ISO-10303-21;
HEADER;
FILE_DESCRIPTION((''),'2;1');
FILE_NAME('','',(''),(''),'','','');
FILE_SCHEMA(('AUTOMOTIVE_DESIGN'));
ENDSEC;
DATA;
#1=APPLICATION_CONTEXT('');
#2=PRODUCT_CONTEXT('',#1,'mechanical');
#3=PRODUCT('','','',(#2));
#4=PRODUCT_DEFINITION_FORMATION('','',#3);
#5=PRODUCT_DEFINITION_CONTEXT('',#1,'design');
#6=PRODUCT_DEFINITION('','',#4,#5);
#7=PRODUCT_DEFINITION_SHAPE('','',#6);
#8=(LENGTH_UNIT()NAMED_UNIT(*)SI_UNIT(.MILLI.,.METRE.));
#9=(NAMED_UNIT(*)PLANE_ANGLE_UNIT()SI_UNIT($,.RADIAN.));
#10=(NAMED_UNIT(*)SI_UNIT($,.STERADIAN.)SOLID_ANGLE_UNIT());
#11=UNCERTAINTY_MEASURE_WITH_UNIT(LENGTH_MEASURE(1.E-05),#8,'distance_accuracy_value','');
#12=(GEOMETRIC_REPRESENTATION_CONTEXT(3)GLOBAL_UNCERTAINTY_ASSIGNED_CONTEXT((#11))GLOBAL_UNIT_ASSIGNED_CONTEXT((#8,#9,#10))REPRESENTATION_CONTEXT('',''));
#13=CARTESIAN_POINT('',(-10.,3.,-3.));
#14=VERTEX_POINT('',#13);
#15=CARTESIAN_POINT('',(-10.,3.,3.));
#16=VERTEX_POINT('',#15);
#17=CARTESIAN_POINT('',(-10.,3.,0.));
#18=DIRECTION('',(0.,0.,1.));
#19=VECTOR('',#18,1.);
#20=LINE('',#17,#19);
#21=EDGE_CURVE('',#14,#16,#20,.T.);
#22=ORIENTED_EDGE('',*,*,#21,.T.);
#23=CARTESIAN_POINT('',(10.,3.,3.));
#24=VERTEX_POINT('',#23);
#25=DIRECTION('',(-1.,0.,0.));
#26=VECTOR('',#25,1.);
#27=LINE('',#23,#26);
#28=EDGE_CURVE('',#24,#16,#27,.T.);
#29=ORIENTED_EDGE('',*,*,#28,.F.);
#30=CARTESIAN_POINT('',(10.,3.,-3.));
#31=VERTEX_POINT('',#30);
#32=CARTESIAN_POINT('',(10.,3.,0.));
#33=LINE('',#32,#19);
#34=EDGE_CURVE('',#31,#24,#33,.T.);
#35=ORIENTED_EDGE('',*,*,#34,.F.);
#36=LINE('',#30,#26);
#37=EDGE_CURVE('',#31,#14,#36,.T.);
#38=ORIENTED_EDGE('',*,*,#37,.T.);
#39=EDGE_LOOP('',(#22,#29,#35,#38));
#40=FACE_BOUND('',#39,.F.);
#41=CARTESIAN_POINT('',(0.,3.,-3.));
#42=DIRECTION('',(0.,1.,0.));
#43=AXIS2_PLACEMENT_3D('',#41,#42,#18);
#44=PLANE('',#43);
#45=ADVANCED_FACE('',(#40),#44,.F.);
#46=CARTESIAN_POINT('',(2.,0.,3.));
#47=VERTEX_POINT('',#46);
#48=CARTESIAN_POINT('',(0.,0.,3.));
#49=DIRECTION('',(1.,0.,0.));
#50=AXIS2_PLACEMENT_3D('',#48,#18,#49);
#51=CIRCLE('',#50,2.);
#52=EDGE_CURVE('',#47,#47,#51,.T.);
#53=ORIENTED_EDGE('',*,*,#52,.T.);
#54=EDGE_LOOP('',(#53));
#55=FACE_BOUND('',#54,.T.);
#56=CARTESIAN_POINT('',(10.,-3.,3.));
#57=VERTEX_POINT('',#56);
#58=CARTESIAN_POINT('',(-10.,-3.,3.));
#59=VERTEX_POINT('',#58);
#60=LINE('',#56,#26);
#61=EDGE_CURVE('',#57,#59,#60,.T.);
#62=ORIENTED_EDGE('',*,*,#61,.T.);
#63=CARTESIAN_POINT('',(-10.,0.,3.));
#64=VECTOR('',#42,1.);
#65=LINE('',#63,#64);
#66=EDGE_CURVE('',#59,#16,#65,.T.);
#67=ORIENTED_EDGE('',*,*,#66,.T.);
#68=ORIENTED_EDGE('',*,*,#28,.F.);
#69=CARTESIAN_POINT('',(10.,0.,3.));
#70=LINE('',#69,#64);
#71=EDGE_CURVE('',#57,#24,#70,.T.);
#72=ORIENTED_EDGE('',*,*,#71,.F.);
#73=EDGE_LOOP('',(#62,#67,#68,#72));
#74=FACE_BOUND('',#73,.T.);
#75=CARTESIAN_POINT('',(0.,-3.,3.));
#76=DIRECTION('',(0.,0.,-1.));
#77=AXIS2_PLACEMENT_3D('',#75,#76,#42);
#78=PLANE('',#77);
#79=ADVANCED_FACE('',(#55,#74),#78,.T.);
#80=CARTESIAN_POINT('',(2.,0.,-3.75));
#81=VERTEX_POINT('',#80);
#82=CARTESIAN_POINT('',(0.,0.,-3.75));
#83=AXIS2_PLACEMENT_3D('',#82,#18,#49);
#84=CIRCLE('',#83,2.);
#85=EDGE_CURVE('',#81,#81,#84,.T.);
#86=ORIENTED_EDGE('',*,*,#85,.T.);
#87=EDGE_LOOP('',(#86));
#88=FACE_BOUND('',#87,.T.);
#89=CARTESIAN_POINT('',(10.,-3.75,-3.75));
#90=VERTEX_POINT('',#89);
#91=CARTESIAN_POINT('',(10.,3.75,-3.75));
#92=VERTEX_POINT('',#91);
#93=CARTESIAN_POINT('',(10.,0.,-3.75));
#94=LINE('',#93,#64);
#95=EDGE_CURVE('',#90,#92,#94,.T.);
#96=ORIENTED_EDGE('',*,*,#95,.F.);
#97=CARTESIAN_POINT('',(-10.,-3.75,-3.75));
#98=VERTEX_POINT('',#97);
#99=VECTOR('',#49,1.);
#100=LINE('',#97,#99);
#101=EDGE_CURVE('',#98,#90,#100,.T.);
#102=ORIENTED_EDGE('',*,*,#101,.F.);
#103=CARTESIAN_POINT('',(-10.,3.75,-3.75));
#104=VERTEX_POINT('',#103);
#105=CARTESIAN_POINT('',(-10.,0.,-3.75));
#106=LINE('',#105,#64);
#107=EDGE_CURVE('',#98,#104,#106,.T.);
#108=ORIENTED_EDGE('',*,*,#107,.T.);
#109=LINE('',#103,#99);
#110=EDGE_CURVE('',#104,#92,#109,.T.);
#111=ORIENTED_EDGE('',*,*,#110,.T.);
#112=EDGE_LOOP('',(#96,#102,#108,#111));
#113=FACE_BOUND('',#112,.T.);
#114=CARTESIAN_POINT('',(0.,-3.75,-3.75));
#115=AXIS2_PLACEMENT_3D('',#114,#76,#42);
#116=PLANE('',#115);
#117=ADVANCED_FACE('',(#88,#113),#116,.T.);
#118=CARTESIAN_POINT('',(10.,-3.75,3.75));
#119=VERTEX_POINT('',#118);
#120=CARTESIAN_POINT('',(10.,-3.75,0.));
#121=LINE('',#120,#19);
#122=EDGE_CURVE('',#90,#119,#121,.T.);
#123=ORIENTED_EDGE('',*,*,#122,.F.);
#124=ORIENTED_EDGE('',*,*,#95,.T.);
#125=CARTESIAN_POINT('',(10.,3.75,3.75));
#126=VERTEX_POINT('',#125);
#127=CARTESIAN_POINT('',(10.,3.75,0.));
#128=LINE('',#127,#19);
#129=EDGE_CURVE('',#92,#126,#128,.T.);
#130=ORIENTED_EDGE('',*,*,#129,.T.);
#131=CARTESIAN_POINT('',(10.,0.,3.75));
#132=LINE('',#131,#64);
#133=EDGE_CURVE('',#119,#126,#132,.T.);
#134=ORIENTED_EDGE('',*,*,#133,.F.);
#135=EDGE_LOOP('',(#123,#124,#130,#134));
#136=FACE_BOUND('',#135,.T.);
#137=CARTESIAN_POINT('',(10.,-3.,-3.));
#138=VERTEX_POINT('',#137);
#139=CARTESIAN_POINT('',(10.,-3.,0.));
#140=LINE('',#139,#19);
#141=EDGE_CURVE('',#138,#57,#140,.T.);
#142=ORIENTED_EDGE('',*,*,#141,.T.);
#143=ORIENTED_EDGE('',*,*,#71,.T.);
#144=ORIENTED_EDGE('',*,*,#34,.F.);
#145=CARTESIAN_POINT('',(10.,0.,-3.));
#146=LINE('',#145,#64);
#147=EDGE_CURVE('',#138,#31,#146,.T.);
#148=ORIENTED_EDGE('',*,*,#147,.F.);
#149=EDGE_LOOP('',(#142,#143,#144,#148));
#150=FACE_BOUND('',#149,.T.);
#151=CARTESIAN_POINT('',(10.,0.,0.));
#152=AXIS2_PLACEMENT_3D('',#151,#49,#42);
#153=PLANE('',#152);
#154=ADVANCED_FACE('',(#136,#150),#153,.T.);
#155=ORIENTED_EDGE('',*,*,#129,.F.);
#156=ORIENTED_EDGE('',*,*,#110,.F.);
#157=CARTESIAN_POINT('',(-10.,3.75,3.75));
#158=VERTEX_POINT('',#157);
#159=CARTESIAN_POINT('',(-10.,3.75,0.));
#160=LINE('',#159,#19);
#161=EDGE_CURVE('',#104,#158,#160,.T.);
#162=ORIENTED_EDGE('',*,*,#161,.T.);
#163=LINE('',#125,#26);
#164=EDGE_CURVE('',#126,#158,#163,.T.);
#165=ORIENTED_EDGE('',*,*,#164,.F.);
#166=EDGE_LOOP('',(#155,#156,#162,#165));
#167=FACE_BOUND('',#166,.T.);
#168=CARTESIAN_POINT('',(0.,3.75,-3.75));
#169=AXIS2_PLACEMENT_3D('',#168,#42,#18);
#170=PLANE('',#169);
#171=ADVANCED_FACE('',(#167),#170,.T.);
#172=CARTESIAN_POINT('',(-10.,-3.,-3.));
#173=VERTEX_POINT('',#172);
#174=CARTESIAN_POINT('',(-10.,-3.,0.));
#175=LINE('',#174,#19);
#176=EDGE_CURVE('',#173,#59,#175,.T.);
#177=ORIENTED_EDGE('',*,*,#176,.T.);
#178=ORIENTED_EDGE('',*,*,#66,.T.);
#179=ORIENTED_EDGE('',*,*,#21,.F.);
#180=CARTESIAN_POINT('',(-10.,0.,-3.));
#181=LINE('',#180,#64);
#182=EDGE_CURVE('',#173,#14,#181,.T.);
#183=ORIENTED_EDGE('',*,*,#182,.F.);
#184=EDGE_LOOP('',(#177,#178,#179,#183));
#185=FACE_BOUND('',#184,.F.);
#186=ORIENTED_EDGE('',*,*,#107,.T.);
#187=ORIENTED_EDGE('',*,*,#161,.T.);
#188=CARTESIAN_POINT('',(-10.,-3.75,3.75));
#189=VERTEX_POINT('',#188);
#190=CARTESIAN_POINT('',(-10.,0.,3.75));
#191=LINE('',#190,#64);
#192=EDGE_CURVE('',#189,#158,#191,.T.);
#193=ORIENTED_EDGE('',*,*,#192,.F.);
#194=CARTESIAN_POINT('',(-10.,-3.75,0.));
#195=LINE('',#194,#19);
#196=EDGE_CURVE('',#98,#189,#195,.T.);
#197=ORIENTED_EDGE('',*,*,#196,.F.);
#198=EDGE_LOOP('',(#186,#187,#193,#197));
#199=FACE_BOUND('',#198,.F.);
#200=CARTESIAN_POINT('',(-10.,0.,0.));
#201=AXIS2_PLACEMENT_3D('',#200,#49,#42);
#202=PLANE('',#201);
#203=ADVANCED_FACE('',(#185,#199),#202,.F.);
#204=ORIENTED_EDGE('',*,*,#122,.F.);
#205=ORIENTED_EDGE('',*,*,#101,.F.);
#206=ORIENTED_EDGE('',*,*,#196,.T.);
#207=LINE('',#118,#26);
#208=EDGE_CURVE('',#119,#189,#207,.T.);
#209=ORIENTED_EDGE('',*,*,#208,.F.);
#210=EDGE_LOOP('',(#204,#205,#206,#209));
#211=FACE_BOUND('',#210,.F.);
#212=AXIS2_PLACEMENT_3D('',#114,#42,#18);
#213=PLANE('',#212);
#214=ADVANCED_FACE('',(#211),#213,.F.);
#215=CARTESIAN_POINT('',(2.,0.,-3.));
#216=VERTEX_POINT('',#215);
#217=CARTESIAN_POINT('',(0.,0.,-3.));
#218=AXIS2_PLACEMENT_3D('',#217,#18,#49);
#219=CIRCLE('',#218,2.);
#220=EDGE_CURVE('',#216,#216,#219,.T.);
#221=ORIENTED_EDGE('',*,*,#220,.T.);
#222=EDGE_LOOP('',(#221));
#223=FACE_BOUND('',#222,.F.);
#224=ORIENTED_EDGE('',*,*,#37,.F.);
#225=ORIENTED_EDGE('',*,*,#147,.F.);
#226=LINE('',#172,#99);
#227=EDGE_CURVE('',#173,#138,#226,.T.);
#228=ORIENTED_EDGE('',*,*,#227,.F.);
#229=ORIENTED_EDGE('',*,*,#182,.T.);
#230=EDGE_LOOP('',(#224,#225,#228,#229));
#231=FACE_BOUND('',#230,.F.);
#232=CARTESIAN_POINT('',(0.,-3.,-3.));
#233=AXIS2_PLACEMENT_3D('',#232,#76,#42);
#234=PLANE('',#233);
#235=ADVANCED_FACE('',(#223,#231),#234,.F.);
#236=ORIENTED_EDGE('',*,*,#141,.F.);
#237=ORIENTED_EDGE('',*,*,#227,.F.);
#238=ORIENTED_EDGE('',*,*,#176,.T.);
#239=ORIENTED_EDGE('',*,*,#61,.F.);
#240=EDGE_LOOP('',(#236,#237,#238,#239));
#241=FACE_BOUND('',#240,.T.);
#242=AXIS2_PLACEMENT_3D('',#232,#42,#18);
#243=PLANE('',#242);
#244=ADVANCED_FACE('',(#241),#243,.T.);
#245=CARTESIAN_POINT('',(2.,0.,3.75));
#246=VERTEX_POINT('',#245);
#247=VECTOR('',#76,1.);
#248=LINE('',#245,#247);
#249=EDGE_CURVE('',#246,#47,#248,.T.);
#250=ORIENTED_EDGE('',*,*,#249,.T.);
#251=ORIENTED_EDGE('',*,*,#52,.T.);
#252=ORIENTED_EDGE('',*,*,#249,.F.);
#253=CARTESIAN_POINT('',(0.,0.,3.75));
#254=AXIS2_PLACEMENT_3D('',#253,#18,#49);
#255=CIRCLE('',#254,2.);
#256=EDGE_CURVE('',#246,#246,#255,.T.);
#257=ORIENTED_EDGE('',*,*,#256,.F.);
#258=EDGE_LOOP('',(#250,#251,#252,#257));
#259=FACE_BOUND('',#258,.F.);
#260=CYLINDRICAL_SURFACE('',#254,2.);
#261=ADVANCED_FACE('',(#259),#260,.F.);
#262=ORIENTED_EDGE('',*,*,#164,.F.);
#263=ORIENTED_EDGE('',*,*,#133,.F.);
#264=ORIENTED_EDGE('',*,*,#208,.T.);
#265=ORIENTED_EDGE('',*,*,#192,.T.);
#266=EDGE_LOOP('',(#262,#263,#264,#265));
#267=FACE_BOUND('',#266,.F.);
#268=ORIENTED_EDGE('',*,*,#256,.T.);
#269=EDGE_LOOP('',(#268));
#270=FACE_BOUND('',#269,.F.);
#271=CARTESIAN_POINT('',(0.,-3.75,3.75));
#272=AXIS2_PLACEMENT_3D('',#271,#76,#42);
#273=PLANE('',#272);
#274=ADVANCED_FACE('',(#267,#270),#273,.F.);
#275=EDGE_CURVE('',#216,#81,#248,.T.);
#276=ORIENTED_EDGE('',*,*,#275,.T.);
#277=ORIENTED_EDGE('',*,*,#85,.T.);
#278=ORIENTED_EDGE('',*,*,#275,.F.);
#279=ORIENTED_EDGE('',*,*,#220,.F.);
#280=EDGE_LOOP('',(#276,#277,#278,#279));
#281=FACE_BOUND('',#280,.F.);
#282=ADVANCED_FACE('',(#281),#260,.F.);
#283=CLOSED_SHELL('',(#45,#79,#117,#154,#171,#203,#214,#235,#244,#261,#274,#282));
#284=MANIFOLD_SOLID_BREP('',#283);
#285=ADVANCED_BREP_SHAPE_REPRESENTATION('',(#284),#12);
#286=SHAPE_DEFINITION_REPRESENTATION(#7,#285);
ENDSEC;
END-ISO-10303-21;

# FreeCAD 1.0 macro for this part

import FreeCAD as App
import Part
import Sketcher

V = App.Vector


def add_polygon(sketch, points):
    """Adds a closed chain of lines whose ends are joined by coincident constraints."""
    first, n = sketch.GeometryCount, len(points)
    for a, b in zip(points, points[1:] + points[:1]):
        sketch.addGeometry(Part.LineSegment(App.Vector(*a, 0), App.Vector(*b, 0)), False)
    for i in range(n):
        sketch.addConstraint(Sketcher.Constraint("Coincident", first + i, 2, first + (i + 1) % n, 1))

doc = App.newDocument("Part")
body = doc.addObject("PartDesign::Body", "Body")

# Sketch on YZ plane
sketch1 = body.newObject("Sketcher::SketchObject", "Sketch")
sketch1.AttachmentSupport = (doc.getObject("YZ_Plane"), [""])
sketch1.MapMode = "FlatFace"
add_polygon(sketch1, [(-4, 4), (-4, -4), (4, -4), (4, 4)])  # lines 0-3
add_polygon(sketch1, [(3, -3), (-3, -3), (-3, 3), (3, 3)])  # lines 4-7
sketch1.addConstraint([
    Sketcher.Constraint("Vertical", 0),
    Sketcher.Constraint("Horizontal", 1),
    Sketcher.Constraint("Vertical", 2),
    Sketcher.Constraint("Horizontal", 3),
    Sketcher.Constraint("Horizontal", 4),
    Sketcher.Constraint("Vertical", 5),
    Sketcher.Constraint("Horizontal", 6),
    Sketcher.Constraint("Vertical", 7),
    Sketcher.Constraint("Symmetric", 0, 2, 2, 2, -1, 1),
    Sketcher.Constraint("Symmetric", 4, 2, 6, 2, -1, 1),
    Sketcher.Constraint("Equal", 3, 0),
    Sketcher.Constraint("Equal", 6, 5),
    Sketcher.Constraint("DistanceX", 4, 2, 4, 1, 6.0),
    Sketcher.Constraint("DistanceX", 1, 1, 1, 2, 7.5),
])
pad1 = body.newObject("PartDesign::Pad", "Pad")
pad1.Profile = sketch1
pad1.Length = 20
pad1.Midplane = True

# Sketch on XY plane
sketch2 = body.newObject("Sketcher::SketchObject", "Sketch001")
sketch2.AttachmentSupport = (doc.getObject("XY_Plane"), [""])
sketch2.MapMode = "FlatFace"
sketch2.AttachmentOffset = App.Placement(V(0, 0, 3.75), App.Rotation())
sketch2.addGeometry(Part.Circle(V(0, 0, 0), V(0, 0, 1), 2), False)
sketch2.addConstraint([
    Sketcher.Constraint("Coincident", 0, 3, -1, 1),
    Sketcher.Constraint("Diameter", 0, 4.0),
])
pocket1 = body.newObject("PartDesign::Pocket", "Pocket")
pocket1.Profile = sketch2
pocket1.Length = 25

doc.recompute()
